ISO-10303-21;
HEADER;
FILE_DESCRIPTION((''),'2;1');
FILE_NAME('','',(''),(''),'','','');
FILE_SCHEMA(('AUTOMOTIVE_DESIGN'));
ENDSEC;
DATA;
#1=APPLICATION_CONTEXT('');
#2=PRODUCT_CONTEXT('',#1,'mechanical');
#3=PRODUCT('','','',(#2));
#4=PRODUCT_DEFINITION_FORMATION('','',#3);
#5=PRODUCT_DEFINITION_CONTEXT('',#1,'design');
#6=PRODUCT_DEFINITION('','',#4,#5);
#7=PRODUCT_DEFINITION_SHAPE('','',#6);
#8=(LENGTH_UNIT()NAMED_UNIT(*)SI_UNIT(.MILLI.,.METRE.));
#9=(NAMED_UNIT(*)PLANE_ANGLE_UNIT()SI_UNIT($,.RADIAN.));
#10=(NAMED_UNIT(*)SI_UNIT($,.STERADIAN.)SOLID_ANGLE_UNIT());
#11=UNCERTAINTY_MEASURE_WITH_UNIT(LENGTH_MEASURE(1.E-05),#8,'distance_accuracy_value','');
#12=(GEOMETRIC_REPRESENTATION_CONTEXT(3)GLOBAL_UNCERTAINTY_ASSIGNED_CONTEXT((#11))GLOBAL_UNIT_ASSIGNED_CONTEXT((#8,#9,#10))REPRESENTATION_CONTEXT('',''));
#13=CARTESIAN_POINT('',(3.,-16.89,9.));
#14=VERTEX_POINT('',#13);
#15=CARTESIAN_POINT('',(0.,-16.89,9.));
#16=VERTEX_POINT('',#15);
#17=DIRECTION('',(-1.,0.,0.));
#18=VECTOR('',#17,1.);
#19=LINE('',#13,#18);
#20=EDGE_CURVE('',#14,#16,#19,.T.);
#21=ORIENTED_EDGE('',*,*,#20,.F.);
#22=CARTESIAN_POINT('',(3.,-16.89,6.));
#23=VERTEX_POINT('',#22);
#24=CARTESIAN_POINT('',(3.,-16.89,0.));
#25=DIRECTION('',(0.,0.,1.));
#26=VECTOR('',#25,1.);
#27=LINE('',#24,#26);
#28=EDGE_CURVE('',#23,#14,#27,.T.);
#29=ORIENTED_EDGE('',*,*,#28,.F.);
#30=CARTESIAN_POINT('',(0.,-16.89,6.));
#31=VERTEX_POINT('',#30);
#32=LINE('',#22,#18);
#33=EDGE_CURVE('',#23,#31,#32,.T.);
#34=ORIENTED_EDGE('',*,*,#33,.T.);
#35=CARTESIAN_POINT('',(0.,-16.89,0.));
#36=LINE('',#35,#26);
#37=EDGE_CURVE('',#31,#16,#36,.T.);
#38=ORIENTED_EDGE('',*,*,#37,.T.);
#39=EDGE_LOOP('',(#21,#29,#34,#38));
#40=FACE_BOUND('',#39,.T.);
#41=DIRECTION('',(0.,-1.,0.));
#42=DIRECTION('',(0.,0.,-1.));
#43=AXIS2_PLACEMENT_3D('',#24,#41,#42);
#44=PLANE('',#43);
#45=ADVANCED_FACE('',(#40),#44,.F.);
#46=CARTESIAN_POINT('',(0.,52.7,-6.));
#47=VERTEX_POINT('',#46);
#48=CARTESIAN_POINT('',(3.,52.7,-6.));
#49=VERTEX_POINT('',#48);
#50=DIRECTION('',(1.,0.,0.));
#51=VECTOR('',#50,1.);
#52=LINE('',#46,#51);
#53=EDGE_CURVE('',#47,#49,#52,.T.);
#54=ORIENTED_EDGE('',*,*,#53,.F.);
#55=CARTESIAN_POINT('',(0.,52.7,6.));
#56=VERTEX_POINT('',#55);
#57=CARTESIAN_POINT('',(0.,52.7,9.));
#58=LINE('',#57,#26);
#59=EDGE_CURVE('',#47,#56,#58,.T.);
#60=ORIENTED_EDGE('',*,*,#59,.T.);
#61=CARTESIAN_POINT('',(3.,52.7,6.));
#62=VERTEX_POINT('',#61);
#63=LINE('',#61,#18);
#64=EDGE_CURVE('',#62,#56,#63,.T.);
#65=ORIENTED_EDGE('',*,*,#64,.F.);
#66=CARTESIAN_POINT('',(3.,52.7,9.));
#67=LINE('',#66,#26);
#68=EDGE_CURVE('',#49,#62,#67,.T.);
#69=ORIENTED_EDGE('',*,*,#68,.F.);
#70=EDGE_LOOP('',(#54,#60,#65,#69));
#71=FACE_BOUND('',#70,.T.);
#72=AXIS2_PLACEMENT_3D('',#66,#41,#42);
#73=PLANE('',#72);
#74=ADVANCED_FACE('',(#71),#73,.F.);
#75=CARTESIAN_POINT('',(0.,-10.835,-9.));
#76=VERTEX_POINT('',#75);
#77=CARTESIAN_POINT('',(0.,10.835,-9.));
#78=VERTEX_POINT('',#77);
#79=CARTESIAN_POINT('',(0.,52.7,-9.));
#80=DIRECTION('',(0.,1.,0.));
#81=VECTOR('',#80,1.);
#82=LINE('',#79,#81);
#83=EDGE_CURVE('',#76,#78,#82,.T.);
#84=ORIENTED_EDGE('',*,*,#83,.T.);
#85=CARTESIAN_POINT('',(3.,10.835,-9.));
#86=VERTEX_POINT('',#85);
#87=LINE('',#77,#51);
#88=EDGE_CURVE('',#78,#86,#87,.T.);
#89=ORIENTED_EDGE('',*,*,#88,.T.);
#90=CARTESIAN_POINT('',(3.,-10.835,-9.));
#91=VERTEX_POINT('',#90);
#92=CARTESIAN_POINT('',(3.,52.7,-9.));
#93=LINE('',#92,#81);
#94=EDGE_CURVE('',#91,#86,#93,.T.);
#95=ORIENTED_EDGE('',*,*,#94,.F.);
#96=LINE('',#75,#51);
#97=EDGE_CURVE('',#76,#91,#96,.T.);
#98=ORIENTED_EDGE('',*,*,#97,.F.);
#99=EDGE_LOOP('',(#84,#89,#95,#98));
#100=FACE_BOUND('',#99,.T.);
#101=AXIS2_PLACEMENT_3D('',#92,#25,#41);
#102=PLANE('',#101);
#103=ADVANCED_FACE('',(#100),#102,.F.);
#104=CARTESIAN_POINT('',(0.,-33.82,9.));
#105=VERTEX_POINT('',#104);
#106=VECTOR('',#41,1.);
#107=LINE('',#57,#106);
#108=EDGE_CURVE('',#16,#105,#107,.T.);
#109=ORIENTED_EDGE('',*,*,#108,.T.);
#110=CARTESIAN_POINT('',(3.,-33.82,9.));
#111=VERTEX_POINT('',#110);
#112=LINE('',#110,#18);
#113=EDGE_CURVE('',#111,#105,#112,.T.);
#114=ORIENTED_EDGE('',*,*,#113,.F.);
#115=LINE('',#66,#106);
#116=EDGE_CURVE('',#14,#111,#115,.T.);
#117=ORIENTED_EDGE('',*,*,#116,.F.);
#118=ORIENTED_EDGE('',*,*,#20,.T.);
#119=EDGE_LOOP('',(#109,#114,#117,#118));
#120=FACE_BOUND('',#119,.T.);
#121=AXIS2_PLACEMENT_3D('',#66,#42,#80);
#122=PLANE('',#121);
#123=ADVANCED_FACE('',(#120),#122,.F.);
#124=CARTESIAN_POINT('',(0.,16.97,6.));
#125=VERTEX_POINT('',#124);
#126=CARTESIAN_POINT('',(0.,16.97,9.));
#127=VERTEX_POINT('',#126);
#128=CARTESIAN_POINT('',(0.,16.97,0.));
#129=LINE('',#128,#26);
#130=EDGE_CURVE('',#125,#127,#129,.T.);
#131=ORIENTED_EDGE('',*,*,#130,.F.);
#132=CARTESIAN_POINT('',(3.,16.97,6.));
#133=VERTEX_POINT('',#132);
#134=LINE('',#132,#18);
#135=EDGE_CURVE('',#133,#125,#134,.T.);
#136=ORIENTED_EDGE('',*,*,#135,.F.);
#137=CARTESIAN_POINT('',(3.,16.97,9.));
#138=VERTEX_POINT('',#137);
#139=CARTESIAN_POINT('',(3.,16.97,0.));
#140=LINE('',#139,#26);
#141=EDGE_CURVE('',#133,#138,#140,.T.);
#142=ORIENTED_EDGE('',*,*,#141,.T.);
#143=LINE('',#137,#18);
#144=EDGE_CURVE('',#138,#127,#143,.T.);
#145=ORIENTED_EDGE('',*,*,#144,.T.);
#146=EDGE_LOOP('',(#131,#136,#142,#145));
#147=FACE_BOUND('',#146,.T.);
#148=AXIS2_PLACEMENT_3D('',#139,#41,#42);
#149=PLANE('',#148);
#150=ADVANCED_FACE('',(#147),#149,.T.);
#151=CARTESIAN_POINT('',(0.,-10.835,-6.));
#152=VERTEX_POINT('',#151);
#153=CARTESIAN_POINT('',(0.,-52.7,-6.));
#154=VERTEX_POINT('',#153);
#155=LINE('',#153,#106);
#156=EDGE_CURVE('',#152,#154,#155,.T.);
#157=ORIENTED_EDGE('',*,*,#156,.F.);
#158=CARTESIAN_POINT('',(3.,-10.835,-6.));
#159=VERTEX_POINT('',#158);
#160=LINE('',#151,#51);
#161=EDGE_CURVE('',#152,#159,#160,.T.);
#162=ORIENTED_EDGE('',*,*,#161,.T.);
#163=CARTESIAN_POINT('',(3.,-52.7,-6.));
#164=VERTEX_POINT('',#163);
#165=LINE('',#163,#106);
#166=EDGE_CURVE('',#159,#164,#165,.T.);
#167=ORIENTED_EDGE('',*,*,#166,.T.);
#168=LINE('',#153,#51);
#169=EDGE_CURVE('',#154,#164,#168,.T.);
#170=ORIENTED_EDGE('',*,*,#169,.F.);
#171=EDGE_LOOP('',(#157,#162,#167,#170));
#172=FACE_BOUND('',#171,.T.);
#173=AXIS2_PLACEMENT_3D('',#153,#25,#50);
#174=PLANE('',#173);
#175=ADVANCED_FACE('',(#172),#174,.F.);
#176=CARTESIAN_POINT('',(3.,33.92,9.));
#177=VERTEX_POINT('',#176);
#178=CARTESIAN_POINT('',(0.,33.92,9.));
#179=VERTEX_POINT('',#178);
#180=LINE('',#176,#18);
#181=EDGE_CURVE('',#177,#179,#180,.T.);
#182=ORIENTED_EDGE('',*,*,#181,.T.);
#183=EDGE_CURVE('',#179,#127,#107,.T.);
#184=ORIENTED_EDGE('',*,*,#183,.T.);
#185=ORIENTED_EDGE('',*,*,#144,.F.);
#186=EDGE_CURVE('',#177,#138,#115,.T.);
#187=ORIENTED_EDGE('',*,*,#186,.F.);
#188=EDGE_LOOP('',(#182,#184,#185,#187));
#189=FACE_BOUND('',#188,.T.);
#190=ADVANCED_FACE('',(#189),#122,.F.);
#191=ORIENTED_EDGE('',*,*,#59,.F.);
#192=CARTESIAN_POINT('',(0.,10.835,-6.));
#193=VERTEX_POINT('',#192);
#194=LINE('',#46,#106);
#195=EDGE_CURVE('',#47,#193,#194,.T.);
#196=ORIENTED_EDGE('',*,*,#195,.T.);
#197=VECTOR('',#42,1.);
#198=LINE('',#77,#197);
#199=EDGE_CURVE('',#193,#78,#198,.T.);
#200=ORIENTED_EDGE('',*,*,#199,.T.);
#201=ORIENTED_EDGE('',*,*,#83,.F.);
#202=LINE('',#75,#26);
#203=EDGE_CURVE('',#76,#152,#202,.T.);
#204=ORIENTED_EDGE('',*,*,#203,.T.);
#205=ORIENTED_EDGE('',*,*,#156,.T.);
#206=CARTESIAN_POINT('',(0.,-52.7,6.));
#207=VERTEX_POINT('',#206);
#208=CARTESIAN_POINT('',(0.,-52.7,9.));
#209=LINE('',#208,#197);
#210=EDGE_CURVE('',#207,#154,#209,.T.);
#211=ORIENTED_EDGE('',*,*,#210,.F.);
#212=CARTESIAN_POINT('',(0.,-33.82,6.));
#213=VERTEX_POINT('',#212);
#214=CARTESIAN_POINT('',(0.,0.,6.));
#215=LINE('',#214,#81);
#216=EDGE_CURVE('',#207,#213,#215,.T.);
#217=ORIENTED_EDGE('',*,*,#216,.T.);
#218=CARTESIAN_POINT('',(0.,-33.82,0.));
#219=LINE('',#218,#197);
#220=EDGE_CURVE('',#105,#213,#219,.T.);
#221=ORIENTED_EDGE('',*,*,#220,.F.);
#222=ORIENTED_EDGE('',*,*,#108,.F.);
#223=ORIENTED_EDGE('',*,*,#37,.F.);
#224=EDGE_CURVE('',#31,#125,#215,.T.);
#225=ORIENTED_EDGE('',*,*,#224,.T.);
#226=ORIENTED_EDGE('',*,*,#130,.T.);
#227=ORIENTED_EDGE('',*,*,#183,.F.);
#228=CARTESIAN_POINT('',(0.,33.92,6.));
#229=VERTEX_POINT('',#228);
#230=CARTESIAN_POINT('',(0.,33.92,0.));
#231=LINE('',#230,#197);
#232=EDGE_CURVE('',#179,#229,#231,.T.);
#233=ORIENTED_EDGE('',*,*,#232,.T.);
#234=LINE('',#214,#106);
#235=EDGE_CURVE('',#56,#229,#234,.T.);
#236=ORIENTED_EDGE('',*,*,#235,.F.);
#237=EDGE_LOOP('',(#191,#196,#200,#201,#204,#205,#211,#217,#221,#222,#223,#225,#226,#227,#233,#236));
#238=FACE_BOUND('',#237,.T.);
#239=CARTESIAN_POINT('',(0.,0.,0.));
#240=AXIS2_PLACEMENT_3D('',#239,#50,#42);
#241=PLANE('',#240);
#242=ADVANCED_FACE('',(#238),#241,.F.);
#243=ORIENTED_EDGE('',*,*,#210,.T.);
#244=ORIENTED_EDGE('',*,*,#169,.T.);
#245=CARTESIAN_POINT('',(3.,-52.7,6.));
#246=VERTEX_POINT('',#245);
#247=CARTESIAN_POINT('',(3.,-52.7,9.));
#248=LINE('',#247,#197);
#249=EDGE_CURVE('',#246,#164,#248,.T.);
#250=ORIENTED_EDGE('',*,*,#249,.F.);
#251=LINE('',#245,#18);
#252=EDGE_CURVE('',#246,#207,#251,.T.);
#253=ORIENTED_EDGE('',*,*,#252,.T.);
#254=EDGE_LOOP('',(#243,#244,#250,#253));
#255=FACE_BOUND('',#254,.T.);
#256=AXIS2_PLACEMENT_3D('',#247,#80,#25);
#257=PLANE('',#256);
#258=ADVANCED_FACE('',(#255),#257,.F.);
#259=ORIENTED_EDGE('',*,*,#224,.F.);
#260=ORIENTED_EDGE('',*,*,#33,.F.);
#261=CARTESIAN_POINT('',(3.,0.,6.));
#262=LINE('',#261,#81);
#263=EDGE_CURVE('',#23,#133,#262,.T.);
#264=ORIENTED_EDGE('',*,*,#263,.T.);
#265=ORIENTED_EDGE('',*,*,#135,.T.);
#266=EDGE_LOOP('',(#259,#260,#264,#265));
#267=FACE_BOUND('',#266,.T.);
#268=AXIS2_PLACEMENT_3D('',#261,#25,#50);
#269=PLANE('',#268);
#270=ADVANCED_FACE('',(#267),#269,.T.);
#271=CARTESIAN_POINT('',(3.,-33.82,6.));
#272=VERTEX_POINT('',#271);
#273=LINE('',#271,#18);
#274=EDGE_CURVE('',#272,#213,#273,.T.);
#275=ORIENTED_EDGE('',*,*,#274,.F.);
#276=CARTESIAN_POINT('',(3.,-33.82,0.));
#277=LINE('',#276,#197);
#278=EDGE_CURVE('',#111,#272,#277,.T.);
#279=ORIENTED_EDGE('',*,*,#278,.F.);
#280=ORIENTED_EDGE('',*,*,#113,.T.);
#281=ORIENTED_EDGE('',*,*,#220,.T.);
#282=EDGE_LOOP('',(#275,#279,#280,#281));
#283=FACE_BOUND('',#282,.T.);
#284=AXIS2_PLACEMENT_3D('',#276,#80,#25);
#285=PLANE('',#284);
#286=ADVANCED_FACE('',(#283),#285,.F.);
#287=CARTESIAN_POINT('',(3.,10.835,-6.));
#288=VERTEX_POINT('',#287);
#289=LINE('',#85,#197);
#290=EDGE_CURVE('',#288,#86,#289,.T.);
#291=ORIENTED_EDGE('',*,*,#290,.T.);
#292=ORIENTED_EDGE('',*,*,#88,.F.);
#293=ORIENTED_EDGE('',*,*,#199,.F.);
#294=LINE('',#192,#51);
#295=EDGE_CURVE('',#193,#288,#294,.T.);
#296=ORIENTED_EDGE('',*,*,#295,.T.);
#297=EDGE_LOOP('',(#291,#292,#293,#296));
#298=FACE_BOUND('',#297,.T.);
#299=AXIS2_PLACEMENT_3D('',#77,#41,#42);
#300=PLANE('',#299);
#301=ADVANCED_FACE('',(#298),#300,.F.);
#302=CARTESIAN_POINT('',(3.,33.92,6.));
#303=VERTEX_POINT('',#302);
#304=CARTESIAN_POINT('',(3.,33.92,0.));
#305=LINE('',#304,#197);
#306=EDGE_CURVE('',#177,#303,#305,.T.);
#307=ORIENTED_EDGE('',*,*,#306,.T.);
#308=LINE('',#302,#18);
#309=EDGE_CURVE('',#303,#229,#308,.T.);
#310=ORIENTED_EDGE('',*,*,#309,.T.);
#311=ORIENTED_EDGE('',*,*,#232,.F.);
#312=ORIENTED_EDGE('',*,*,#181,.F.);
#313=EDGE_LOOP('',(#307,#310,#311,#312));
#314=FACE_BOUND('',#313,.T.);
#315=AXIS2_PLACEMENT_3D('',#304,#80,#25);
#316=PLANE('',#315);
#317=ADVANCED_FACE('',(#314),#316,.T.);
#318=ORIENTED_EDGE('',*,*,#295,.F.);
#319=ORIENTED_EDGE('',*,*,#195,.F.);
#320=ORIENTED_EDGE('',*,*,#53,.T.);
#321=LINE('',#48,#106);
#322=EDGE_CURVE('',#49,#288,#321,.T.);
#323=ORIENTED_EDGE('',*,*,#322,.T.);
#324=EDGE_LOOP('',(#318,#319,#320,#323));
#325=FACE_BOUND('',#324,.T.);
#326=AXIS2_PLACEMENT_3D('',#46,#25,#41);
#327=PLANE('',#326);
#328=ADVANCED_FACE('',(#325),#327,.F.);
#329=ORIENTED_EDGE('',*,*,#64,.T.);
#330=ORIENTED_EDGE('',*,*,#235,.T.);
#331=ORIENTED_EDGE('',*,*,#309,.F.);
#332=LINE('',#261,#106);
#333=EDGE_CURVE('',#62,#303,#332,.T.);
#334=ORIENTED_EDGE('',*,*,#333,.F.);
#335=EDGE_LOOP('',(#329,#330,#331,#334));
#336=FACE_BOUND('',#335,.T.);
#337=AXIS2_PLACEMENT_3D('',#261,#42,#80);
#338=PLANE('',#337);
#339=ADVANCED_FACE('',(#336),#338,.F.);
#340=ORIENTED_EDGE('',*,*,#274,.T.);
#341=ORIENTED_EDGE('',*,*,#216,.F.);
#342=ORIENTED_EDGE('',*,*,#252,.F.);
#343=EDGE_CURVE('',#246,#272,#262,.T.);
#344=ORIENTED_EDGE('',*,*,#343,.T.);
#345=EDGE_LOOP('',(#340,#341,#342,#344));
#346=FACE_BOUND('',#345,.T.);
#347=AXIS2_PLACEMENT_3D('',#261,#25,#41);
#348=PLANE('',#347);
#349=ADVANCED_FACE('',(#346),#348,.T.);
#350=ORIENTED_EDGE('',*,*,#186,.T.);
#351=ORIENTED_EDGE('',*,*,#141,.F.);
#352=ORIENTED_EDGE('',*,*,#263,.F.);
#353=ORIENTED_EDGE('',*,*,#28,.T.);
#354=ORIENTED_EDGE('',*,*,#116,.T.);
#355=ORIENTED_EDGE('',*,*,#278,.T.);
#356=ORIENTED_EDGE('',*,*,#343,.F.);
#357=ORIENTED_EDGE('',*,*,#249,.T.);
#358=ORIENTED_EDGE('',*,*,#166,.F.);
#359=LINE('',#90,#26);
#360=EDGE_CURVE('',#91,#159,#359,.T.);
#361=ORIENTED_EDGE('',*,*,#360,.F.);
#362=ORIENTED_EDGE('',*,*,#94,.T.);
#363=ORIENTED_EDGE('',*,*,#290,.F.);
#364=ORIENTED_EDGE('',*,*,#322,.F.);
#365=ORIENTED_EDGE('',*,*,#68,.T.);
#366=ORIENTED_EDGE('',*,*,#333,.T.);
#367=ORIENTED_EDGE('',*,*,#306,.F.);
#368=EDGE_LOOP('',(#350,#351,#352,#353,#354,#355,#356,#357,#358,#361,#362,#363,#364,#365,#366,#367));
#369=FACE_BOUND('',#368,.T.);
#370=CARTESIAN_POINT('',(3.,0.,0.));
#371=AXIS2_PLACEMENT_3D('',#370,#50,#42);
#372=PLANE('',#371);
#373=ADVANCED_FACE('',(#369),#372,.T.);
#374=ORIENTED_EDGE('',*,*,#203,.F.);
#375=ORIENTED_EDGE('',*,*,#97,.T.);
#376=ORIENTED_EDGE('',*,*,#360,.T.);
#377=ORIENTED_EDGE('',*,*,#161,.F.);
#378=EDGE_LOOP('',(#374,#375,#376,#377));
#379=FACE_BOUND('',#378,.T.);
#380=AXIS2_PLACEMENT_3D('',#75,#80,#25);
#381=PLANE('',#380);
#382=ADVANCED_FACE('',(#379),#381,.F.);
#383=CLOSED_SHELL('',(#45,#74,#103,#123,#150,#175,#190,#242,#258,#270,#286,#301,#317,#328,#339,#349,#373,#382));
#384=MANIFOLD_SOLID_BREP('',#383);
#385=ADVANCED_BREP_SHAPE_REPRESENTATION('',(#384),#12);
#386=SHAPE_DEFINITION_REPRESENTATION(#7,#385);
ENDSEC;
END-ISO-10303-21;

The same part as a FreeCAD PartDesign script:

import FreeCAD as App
import Part
import Sketcher
Q = App.Units.Quantity


def add_polygon(sketch, points):
    """Adds a closed chain of lines whose ends are joined by coincident constraints."""
    first, n = sketch.GeometryCount, len(points)
    for a, b in zip(points, points[1:] + points[:1]):
        sketch.addGeometry(Part.LineSegment(App.Vector(*a, 0), App.Vector(*b, 0)), False)
    for i in range(n):
        sketch.addConstraint(Sketcher.Constraint("Coincident", first + i, 2, first + (i + 1) % n, 1))

doc = App.newDocument("Part")
body = doc.addObject("PartDesign::Body", "Body")

# Sketch on YZ plane
sketch1 = body.newObject("Sketcher::SketchObject", "Sketch")
sketch1.AttachmentSupport = (doc.getObject("YZ_Plane"), [""])
sketch1.MapMode = "FlatFace"
add_polygon(sketch1, [(53, 9), (-53, 9), (-53, -9), (53, -9)])  # lines 0-3
sketch1.addConstraint([
    Sketcher.Constraint("Horizontal", 0),
    Sketcher.Constraint("Vertical", 1),
    Sketcher.Constraint("Horizontal", 2),
    Sketcher.Constraint("Vertical", 3),
    Sketcher.Constraint("Symmetric", 0, 2, 2, 2, -1, 1),
    Sketcher.Constraint("DistanceY", 1, 2, 1, 1, Q("18 mm")),
    Sketcher.Constraint("DistanceX", 0, 2, 0, 1, Q("105.4 mm")),
])
pad1 = body.newObject("PartDesign::Pad", "Pad")
pad1.Profile = sketch1
pad1.Length = 3

# Sketch on YZ plane
sketch2 = body.newObject("Sketcher::SketchObject", "Sketch001")
sketch2.AttachmentSupport = (doc.getObject("YZ_Plane"), [""])
sketch2.MapMode = "FlatFace"
sketch2.AttachmentOffset = App.Placement(App.Vector(0, 0, 3), App.Rotation())
add_polygon(sketch2, [(-10.8, -6), (-52.7, -6), (-52.7, -9), (-10.8, -9)])  # lines 0-3
add_polygon(sketch2, [(52.7, -6), (10.8, -6), (10.8, -9), (52.7, -9)])  # lines 4-7
sketch2.addConstraint([
    Sketcher.Constraint("Horizontal", 0),
    Sketcher.Constraint("Vertical", 1),
    Sketcher.Constraint("Horizontal", 2),
    Sketcher.Constraint("Vertical", 3),
    Sketcher.Constraint("Horizontal", 4),
    Sketcher.Constraint("Vertical", 5),
    Sketcher.Constraint("Horizontal", 6),
    Sketcher.Constraint("Vertical", 7),
    Sketcher.Constraint("Symmetric", 3, 2, 4, 2, -2),
    Sketcher.Constraint("Symmetric", 1, 2, 6, 2, -2),
    Sketcher.Constraint("DistanceY", 1, 2, 1, 1, Q("3 mm")),
    Sketcher.Constraint("DistanceY", 0, 2, -1, 1, Q("6 mm")),
    Sketcher.Constraint("DistanceX", 0, 2, -1, 1, Q("52.7 mm")),
    Sketcher.Constraint("DistanceX", 0, 2, 0, 1, Q("41.865 mm")),
])
pocket1 = body.newObject("PartDesign::Pocket", "Pocket")
pocket1.Profile = sketch2
pocket1.Length = 3

# Sketch on YZ plane
sketch3 = body.newObject("Sketcher::SketchObject", "Sketch002")
sketch3.AttachmentSupport = (doc.getObject("YZ_Plane"), [""])
sketch3.MapMode = "FlatFace"
add_polygon(sketch3, [(-33.8, 6), (-52.7, 6), (-52.7, 9), (-33.8, 9)])  # lines 0-3
add_polygon(sketch3, [(17, 6), (-16.9, 6), (-16.9, 9), (17, 9)])  # lines 4-7
add_polygon(sketch3, [(52.7, 6), (33.9, 6), (33.9, 9), (52.7, 9)])  # lines 8-11
sketch3.addConstraint([
    Sketcher.Constraint("Horizontal", 0),
    Sketcher.Constraint("Vertical", 1),
    Sketcher.Constraint("Horizontal", 2),
    Sketcher.Constraint("Vertical", 3),
    Sketcher.Constraint("Horizontal", 4),
    Sketcher.Constraint("Vertical", 5),
    Sketcher.Constraint("Horizontal", 6),
    Sketcher.Constraint("Vertical", 7),
    Sketcher.Constraint("Horizontal", 8),
    Sketcher.Constraint("Vertical", 9),
    Sketcher.Constraint("Horizontal", 10),
    Sketcher.Constraint("Vertical", 11),
    Sketcher.Constraint("Symmetric", 1, 2, 10, 2, -2),
    Sketcher.Constraint("Horizontal", 3, 2, 4, 2),
    Sketcher.Constraint("Horizontal", 2, 2, 5, 2),
    Sketcher.Constraint("Horizontal", 7, 2, 8, 2),
    Sketcher.Constraint("DistanceY", 1, 1, 1, 2, Q("3 mm")),
    Sketcher.Constraint("DistanceY", -1, 1, 0, 2, Q("6 mm")),
    Sketcher.Constraint("DistanceX", 0, 2, 0, 1, Q("18.88 mm")),
    Sketcher.Constraint("DistanceX", 4, 2, 4, 1, Q("33.86 mm")),
    Sketcher.Constraint("DistanceX", 8, 2, 8, 1, Q("18.78 mm")),
    Sketcher.Constraint("DistanceX", 0, 2, -1, 1, Q("52.7 mm")),
    Sketcher.Constraint("DistanceX", 4, 2, -1, 1, Q("16.89 mm")),
])
pocket2 = body.newObject("PartDesign::Pocket", "Pocket001")
pocket2.Profile = sketch3
pocket2.Length = 3
pocket2.Reversed = True

doc.recompute()
